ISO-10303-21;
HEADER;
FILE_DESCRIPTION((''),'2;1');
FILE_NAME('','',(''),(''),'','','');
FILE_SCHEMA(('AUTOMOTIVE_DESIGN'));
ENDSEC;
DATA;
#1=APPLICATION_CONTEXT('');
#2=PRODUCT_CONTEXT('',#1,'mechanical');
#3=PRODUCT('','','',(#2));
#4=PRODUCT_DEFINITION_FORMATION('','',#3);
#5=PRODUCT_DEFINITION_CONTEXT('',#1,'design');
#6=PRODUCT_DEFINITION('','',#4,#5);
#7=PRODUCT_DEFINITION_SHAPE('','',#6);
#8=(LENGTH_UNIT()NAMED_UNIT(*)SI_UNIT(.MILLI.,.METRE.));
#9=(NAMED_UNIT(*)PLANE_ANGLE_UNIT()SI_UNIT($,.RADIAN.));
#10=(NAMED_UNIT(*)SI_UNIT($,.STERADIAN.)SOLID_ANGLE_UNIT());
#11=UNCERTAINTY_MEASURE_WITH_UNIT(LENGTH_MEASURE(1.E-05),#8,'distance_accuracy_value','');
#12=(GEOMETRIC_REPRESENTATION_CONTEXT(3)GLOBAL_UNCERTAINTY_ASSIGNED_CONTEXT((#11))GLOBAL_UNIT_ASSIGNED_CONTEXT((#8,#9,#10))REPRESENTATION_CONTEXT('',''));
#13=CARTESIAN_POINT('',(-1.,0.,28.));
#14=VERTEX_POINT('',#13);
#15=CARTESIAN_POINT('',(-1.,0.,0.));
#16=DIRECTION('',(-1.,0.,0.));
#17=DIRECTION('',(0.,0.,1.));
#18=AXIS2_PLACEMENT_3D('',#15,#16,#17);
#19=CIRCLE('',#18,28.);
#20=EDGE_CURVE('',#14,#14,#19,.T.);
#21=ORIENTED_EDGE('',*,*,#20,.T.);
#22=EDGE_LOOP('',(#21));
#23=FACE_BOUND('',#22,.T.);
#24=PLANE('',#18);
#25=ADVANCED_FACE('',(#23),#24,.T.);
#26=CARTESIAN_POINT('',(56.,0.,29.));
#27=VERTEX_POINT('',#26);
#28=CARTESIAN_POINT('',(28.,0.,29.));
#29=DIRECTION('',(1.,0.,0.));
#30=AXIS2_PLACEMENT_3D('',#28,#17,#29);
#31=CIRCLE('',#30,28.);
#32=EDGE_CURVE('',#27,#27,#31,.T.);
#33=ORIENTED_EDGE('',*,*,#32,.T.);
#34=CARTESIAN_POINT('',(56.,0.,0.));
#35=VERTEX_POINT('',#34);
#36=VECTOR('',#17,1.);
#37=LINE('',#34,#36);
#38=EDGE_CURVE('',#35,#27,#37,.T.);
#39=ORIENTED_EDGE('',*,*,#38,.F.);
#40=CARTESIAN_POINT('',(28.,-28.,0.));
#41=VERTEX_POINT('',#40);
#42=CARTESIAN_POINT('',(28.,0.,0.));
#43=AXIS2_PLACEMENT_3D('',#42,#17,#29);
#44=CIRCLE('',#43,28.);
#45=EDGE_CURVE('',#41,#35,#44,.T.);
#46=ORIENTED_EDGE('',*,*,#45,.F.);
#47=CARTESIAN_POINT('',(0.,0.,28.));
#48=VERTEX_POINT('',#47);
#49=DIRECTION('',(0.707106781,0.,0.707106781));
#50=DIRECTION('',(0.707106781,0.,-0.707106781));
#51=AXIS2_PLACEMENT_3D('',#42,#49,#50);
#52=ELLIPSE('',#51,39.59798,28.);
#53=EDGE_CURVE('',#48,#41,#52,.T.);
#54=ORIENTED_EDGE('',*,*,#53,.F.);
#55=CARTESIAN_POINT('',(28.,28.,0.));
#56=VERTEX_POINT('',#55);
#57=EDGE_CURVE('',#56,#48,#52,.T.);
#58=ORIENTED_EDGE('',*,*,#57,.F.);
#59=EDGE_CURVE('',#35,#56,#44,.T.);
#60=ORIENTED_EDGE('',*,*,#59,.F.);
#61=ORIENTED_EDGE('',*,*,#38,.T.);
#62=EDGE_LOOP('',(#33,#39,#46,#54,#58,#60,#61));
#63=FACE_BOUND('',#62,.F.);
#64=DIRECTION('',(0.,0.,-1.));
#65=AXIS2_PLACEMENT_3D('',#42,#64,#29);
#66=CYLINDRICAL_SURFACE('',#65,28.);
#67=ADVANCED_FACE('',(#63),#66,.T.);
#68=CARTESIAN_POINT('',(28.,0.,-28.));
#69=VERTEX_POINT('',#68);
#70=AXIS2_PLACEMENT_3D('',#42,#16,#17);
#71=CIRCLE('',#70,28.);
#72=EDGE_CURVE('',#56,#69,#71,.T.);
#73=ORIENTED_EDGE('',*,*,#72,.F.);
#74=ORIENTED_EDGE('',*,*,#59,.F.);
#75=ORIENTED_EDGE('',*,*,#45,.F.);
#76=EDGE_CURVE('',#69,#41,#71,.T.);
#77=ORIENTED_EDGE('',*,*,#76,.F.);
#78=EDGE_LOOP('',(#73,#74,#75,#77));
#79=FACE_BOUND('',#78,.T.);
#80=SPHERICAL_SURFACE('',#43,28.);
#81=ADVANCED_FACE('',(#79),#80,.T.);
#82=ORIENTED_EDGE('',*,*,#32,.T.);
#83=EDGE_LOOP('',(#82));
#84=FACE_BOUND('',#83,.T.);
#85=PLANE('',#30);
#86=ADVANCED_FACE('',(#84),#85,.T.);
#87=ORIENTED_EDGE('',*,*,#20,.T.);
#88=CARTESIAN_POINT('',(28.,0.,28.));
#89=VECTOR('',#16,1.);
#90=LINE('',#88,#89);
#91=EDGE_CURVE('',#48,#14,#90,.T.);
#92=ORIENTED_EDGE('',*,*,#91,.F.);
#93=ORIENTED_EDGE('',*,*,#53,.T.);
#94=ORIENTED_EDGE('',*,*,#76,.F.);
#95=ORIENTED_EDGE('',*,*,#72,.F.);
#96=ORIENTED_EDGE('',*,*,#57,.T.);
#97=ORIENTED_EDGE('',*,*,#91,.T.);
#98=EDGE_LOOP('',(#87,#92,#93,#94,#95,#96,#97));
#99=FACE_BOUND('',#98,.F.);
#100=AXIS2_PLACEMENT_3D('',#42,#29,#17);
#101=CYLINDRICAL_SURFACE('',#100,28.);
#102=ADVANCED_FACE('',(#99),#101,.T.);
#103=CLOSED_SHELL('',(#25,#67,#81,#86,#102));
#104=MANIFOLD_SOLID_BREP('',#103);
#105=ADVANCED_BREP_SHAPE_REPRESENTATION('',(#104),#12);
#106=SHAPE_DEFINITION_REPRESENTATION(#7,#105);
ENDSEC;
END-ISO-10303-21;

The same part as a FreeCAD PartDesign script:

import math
import FreeCAD as App
import Part
import Sketcher

doc = App.newDocument("Part")
body = doc.addObject("PartDesign::Body", "Body")

# Sketch on XY plane
sketch1 = body.newObject("Sketcher::SketchObject", "Sketch")
sketch1.AttachmentSupport = (doc.getObject("XY_Plane"), [""])
sketch1.MapMode = "FlatFace"
sketch1.addGeometry(Part.Circle(App.Vector(28, 0, 0), App.Vector(0, 0, 1), 28), False)
sketch1.addConstraint(Sketcher.Constraint("PointOnObject", 0, 3, -1))
sketch1.addConstraint(Sketcher.Constraint("Diameter", 0, 56.0))
sketch1.addConstraint(Sketcher.Constraint("DistanceX", -1, 1, 0, 3, 28.0))
pad1 = body.newObject("PartDesign::Pad", "Pad")
pad1.Profile = sketch1
pad1.Length = 29
body2 = doc.addObject("PartDesign::Body", "Body001")

# Sketch on XZ plane
sketch2 = body2.newObject("Sketcher::SketchObject", "Sketch001")
sketch2.AttachmentSupport = (doc.getObject("XZ_Plane001"), [""])
sketch2.MapMode = "FlatFace"
sketch2.addGeometry(Part.ArcOfCircle(Part.Circle(App.Vector(28, 0, 0), App.Vector(0, 0, 1), 28), math.radians(-90), math.radians(90)), False)
sketch2.addGeometry(Part.LineSegment(App.Vector(28, 28, 0), App.Vector(28, -28, 0)), False)
sketch2.addGeometry(Part.LineSegment(App.Vector(28, -28, 0), App.Vector(28, 28, 0)), True)  # axis
sketch2.addConstraint(Sketcher.Constraint("Coincident", 0, 1, 1, 2))
sketch2.addConstraint(Sketcher.Constraint("Coincident", 1, 1, 0, 2))
sketch2.addConstraint(Sketcher.Constraint("Vertical", 1))
sketch2.addConstraint(Sketcher.Constraint("Vertical", 2))
sketch2.addConstraint(Sketcher.Constraint("Coincident", 2, 1, 0, 1))
sketch2.addConstraint(Sketcher.Constraint("PointOnObject", 0, 3, -1))
sketch2.addConstraint(Sketcher.Constraint("Equal", 1, 2))
sketch2.addConstraint(Sketcher.Constraint("Radius", 0, 28.0))
sketch2.addConstraint(Sketcher.Constraint("DistanceX", -1, 1, 0, 3, 28.0))
sketch2.addConstraint(Sketcher.Constraint("DistanceX", -1, 1, 0, 1, 28.0))
revolution = body2.newObject("PartDesign::Revolution", "Revolution")
revolution.Profile = sketch2
revolution.ReferenceAxis = (sketch2, ["Axis0"])
revolution.Angle = 360
body3 = doc.addObject("PartDesign::Body", "Body002")

# Sketch on YZ plane
sketch3 = body3.newObject("Sketcher::SketchObject", "Sketch002")
sketch3.AttachmentSupport = (doc.getObject("YZ_Plane002"), [""])
sketch3.MapMode = "FlatFace"
sketch3.AttachmentOffset = App.Placement(App.Vector(0, 0, 28), App.Rotation())
sketch3.addGeometry(Part.Circle(App.Vector(0, 0, 0), App.Vector(0, 0, 1), 28), False)
sketch3.addConstraint(Sketcher.Constraint("Coincident", 0, 3, -1, 1))
sketch3.addConstraint(Sketcher.Constraint("Diameter", 0, 56.0))
pad2 = body3.newObject("PartDesign::Pad", "Pad001")
pad2.Profile = sketch3
pad2.Length = 29
pad2.Reversed = True
doc.recompute()

boolean = body3.newObject("PartDesign::Boolean", "Boolean")
boolean.Type = "Fuse"
boolean.addObjects([body])
doc.recompute()

boolean2 = body3.newObject("PartDesign::Boolean", "Boolean001")
boolean2.Type = "Fuse"
boolean2.addObjects([body2])

doc.recompute()
